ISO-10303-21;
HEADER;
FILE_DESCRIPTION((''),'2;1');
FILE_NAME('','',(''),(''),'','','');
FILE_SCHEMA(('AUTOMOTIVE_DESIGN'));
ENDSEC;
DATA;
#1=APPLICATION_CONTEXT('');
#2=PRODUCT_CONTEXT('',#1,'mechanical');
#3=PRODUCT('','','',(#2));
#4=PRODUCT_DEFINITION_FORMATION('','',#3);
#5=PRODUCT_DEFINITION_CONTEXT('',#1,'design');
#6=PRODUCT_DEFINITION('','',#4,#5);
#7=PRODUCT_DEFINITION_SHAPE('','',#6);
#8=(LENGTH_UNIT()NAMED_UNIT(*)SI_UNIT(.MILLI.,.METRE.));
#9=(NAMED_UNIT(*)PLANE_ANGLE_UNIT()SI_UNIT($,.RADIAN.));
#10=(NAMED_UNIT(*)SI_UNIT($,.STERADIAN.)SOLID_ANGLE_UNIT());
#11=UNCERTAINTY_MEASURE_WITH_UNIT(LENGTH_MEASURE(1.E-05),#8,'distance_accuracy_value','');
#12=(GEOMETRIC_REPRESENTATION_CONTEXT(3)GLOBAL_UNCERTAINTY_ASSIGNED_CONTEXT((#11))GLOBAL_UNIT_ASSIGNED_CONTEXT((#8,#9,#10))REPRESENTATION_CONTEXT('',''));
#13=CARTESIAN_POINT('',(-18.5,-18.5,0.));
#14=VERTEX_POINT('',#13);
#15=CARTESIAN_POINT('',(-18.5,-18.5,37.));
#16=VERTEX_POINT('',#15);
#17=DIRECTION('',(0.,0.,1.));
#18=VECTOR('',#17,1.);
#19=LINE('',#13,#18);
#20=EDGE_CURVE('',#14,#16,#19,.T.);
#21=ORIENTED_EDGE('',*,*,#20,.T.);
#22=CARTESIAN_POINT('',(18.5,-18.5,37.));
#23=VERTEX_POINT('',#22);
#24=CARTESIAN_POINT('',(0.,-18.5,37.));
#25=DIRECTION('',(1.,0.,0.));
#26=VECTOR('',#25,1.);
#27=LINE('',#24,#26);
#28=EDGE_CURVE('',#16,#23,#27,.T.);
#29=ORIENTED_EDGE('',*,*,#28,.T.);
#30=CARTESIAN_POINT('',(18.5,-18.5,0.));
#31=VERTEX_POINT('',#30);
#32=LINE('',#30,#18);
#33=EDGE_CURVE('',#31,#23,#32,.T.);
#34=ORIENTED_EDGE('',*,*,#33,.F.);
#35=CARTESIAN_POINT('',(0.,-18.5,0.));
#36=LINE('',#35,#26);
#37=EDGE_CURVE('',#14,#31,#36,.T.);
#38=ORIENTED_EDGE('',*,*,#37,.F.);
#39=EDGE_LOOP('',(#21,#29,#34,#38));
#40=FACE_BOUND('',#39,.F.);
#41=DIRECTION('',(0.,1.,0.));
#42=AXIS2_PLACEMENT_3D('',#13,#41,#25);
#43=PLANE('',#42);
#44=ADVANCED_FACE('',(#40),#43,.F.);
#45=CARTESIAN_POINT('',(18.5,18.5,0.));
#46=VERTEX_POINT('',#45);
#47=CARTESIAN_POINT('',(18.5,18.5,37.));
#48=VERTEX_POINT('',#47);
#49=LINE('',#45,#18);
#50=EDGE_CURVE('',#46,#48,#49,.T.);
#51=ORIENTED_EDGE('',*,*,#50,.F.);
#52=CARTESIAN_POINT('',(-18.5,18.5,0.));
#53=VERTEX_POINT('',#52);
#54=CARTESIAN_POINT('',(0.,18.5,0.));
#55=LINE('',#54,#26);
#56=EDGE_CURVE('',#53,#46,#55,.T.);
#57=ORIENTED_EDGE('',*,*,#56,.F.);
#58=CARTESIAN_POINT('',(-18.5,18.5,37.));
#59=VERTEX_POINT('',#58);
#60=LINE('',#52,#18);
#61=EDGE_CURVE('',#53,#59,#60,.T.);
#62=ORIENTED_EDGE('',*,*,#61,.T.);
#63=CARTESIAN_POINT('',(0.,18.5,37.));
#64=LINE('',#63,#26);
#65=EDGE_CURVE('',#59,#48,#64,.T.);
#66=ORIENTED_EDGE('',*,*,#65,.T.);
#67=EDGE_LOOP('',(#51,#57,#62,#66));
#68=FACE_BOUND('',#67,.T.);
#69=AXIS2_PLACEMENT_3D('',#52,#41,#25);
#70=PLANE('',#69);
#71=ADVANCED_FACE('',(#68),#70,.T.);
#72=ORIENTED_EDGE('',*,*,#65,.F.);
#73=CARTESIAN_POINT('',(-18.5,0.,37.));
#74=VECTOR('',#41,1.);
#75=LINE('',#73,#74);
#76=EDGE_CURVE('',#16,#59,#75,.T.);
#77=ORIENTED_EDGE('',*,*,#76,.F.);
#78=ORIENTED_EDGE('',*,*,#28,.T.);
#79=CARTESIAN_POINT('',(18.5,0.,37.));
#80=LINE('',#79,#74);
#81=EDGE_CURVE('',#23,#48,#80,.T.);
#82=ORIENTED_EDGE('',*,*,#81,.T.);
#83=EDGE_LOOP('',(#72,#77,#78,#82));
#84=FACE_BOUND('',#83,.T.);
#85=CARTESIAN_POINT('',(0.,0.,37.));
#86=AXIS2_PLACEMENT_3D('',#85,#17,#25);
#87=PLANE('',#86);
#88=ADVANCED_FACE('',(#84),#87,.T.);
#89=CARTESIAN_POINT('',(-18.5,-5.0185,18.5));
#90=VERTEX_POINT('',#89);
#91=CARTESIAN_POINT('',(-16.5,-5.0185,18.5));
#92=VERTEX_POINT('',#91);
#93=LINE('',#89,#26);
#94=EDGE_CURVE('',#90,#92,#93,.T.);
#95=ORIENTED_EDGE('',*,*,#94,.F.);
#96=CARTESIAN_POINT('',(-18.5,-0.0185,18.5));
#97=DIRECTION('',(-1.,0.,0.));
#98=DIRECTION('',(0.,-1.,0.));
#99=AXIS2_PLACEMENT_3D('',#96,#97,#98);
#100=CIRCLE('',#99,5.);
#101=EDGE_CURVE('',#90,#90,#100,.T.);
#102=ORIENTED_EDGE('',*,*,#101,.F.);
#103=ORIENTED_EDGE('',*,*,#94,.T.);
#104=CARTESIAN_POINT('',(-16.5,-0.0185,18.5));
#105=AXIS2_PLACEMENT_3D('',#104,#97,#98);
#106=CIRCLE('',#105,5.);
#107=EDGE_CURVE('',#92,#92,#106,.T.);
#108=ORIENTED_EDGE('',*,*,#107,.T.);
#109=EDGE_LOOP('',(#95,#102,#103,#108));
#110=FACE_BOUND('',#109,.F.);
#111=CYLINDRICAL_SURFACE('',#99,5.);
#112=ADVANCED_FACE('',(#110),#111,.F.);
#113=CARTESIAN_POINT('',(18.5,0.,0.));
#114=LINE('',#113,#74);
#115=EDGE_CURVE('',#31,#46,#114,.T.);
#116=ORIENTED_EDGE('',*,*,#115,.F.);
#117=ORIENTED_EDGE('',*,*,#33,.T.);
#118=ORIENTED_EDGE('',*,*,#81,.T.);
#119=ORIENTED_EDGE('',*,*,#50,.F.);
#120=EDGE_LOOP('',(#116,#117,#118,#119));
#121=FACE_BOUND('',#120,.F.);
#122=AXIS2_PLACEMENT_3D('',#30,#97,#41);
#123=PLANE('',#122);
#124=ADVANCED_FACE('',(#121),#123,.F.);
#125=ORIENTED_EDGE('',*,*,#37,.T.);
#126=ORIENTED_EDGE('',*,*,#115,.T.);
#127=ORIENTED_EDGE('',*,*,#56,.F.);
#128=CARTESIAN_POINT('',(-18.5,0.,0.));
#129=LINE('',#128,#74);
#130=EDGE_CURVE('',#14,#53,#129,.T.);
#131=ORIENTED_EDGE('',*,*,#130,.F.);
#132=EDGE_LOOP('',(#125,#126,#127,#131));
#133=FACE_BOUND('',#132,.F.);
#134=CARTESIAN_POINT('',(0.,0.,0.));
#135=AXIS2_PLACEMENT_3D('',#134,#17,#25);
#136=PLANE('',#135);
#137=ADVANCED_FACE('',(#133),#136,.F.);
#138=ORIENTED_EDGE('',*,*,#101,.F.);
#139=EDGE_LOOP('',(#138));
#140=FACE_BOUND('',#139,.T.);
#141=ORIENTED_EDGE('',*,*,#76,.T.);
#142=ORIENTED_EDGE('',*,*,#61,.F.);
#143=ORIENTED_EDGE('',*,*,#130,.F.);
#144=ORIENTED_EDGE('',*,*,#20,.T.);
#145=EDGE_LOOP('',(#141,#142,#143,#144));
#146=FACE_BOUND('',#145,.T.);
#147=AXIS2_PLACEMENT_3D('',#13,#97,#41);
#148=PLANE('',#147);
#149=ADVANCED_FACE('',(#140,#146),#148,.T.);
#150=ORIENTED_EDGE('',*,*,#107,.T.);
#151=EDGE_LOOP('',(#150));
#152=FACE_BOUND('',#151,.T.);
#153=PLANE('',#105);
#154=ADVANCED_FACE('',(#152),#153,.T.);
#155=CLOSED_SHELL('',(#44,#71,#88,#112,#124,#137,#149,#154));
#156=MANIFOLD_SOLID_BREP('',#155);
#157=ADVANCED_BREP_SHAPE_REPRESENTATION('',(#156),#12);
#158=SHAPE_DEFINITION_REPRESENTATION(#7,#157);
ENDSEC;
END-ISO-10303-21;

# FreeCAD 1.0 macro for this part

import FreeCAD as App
import Part
import Sketcher

V = App.Vector


def add_polygon(sketch, points):
    """Adds a closed chain of lines whose ends are joined by coincident constraints."""
    first, n = sketch.GeometryCount, len(points)
    for a, b in zip(points, points[1:] + points[:1]):
        sketch.addGeometry(Part.LineSegment(App.Vector(*a, 0), App.Vector(*b, 0)), False)
    for i in range(n):
        sketch.addConstraint(Sketcher.Constraint("Coincident", first + i, 2, first + (i + 1) % n, 1))

doc = App.newDocument("Part")
params = doc.addObject("Spreadsheet::Sheet", "Params")
for row, (alias, value) in enumerate([
    ("sketch1_width", "37 mm"),
    ("pad1_length", "37 mm"),
    ("sketch2_diameter", "10 mm"),
    ("pocket1_length", "2 mm"),
], start=1):
    params.set(f"A{row}", alias)
    params.set(f"B{row}", "=" + value)
    params.setAlias(f"B{row}", alias)

body = doc.addObject("PartDesign::Body", "Body")

# Sketch on XY plane
sketch1 = body.newObject("Sketcher::SketchObject", "Sketch")
sketch1.AttachmentSupport = (doc.getObject("XY_Plane"), [""])
sketch1.MapMode = "FlatFace"
add_polygon(sketch1, [(-18, 18), (-18, -18), (18, -18), (18, 18)])  # lines 0-3
sketch1.addConstraint([
    Sketcher.Constraint("Vertical", 0),
    Sketcher.Constraint("Horizontal", 1),
    Sketcher.Constraint("Vertical", 2),
    Sketcher.Constraint("Horizontal", 3),
    Sketcher.Constraint("Symmetric", 0, 2, 2, 2, -1, 1),
    Sketcher.Constraint("Equal", 3, 0),
    Sketcher.Constraint("DistanceX", 1, 1, 1, 2, 37.0),
])
sketch1.setExpression("Constraints[10]", "Params.sketch1_width")
pad1 = body.newObject("PartDesign::Pad", "Pad")
pad1.Profile = sketch1
pad1.setExpression("Length", "Params.pad1_length")

# Sketch on YZ plane
sketch2 = body.newObject("Sketcher::SketchObject", "Sketch001")
sketch2.AttachmentSupport = (doc.getObject("YZ_Plane"), [""])
sketch2.MapMode = "FlatFace"
sketch2.AttachmentOffset = App.Placement(V(0, 0, -18.5), App.Rotation())
sketch2.addGeometry(Part.Circle(V(0, 18, 0), V(0, 0, 1), 5), False)
sketch2.addConstraint([
    Sketcher.Constraint("Diameter", 0, 10.0),
    Sketcher.Constraint("DistanceY", -1, 1, 0, 3, 18.5),
    Sketcher.Constraint("DistanceX", 0, 3, -1, 1, 0.0185),
])
sketch2.setExpression("Constraints[0]", "Params.sketch2_diameter")
pocket1 = body.newObject("PartDesign::Pocket", "Pocket")
pocket1.Profile = sketch2
pocket1.setExpression("Length", "Params.pocket1_length")
pocket1.Reversed = True

doc.recompute()
